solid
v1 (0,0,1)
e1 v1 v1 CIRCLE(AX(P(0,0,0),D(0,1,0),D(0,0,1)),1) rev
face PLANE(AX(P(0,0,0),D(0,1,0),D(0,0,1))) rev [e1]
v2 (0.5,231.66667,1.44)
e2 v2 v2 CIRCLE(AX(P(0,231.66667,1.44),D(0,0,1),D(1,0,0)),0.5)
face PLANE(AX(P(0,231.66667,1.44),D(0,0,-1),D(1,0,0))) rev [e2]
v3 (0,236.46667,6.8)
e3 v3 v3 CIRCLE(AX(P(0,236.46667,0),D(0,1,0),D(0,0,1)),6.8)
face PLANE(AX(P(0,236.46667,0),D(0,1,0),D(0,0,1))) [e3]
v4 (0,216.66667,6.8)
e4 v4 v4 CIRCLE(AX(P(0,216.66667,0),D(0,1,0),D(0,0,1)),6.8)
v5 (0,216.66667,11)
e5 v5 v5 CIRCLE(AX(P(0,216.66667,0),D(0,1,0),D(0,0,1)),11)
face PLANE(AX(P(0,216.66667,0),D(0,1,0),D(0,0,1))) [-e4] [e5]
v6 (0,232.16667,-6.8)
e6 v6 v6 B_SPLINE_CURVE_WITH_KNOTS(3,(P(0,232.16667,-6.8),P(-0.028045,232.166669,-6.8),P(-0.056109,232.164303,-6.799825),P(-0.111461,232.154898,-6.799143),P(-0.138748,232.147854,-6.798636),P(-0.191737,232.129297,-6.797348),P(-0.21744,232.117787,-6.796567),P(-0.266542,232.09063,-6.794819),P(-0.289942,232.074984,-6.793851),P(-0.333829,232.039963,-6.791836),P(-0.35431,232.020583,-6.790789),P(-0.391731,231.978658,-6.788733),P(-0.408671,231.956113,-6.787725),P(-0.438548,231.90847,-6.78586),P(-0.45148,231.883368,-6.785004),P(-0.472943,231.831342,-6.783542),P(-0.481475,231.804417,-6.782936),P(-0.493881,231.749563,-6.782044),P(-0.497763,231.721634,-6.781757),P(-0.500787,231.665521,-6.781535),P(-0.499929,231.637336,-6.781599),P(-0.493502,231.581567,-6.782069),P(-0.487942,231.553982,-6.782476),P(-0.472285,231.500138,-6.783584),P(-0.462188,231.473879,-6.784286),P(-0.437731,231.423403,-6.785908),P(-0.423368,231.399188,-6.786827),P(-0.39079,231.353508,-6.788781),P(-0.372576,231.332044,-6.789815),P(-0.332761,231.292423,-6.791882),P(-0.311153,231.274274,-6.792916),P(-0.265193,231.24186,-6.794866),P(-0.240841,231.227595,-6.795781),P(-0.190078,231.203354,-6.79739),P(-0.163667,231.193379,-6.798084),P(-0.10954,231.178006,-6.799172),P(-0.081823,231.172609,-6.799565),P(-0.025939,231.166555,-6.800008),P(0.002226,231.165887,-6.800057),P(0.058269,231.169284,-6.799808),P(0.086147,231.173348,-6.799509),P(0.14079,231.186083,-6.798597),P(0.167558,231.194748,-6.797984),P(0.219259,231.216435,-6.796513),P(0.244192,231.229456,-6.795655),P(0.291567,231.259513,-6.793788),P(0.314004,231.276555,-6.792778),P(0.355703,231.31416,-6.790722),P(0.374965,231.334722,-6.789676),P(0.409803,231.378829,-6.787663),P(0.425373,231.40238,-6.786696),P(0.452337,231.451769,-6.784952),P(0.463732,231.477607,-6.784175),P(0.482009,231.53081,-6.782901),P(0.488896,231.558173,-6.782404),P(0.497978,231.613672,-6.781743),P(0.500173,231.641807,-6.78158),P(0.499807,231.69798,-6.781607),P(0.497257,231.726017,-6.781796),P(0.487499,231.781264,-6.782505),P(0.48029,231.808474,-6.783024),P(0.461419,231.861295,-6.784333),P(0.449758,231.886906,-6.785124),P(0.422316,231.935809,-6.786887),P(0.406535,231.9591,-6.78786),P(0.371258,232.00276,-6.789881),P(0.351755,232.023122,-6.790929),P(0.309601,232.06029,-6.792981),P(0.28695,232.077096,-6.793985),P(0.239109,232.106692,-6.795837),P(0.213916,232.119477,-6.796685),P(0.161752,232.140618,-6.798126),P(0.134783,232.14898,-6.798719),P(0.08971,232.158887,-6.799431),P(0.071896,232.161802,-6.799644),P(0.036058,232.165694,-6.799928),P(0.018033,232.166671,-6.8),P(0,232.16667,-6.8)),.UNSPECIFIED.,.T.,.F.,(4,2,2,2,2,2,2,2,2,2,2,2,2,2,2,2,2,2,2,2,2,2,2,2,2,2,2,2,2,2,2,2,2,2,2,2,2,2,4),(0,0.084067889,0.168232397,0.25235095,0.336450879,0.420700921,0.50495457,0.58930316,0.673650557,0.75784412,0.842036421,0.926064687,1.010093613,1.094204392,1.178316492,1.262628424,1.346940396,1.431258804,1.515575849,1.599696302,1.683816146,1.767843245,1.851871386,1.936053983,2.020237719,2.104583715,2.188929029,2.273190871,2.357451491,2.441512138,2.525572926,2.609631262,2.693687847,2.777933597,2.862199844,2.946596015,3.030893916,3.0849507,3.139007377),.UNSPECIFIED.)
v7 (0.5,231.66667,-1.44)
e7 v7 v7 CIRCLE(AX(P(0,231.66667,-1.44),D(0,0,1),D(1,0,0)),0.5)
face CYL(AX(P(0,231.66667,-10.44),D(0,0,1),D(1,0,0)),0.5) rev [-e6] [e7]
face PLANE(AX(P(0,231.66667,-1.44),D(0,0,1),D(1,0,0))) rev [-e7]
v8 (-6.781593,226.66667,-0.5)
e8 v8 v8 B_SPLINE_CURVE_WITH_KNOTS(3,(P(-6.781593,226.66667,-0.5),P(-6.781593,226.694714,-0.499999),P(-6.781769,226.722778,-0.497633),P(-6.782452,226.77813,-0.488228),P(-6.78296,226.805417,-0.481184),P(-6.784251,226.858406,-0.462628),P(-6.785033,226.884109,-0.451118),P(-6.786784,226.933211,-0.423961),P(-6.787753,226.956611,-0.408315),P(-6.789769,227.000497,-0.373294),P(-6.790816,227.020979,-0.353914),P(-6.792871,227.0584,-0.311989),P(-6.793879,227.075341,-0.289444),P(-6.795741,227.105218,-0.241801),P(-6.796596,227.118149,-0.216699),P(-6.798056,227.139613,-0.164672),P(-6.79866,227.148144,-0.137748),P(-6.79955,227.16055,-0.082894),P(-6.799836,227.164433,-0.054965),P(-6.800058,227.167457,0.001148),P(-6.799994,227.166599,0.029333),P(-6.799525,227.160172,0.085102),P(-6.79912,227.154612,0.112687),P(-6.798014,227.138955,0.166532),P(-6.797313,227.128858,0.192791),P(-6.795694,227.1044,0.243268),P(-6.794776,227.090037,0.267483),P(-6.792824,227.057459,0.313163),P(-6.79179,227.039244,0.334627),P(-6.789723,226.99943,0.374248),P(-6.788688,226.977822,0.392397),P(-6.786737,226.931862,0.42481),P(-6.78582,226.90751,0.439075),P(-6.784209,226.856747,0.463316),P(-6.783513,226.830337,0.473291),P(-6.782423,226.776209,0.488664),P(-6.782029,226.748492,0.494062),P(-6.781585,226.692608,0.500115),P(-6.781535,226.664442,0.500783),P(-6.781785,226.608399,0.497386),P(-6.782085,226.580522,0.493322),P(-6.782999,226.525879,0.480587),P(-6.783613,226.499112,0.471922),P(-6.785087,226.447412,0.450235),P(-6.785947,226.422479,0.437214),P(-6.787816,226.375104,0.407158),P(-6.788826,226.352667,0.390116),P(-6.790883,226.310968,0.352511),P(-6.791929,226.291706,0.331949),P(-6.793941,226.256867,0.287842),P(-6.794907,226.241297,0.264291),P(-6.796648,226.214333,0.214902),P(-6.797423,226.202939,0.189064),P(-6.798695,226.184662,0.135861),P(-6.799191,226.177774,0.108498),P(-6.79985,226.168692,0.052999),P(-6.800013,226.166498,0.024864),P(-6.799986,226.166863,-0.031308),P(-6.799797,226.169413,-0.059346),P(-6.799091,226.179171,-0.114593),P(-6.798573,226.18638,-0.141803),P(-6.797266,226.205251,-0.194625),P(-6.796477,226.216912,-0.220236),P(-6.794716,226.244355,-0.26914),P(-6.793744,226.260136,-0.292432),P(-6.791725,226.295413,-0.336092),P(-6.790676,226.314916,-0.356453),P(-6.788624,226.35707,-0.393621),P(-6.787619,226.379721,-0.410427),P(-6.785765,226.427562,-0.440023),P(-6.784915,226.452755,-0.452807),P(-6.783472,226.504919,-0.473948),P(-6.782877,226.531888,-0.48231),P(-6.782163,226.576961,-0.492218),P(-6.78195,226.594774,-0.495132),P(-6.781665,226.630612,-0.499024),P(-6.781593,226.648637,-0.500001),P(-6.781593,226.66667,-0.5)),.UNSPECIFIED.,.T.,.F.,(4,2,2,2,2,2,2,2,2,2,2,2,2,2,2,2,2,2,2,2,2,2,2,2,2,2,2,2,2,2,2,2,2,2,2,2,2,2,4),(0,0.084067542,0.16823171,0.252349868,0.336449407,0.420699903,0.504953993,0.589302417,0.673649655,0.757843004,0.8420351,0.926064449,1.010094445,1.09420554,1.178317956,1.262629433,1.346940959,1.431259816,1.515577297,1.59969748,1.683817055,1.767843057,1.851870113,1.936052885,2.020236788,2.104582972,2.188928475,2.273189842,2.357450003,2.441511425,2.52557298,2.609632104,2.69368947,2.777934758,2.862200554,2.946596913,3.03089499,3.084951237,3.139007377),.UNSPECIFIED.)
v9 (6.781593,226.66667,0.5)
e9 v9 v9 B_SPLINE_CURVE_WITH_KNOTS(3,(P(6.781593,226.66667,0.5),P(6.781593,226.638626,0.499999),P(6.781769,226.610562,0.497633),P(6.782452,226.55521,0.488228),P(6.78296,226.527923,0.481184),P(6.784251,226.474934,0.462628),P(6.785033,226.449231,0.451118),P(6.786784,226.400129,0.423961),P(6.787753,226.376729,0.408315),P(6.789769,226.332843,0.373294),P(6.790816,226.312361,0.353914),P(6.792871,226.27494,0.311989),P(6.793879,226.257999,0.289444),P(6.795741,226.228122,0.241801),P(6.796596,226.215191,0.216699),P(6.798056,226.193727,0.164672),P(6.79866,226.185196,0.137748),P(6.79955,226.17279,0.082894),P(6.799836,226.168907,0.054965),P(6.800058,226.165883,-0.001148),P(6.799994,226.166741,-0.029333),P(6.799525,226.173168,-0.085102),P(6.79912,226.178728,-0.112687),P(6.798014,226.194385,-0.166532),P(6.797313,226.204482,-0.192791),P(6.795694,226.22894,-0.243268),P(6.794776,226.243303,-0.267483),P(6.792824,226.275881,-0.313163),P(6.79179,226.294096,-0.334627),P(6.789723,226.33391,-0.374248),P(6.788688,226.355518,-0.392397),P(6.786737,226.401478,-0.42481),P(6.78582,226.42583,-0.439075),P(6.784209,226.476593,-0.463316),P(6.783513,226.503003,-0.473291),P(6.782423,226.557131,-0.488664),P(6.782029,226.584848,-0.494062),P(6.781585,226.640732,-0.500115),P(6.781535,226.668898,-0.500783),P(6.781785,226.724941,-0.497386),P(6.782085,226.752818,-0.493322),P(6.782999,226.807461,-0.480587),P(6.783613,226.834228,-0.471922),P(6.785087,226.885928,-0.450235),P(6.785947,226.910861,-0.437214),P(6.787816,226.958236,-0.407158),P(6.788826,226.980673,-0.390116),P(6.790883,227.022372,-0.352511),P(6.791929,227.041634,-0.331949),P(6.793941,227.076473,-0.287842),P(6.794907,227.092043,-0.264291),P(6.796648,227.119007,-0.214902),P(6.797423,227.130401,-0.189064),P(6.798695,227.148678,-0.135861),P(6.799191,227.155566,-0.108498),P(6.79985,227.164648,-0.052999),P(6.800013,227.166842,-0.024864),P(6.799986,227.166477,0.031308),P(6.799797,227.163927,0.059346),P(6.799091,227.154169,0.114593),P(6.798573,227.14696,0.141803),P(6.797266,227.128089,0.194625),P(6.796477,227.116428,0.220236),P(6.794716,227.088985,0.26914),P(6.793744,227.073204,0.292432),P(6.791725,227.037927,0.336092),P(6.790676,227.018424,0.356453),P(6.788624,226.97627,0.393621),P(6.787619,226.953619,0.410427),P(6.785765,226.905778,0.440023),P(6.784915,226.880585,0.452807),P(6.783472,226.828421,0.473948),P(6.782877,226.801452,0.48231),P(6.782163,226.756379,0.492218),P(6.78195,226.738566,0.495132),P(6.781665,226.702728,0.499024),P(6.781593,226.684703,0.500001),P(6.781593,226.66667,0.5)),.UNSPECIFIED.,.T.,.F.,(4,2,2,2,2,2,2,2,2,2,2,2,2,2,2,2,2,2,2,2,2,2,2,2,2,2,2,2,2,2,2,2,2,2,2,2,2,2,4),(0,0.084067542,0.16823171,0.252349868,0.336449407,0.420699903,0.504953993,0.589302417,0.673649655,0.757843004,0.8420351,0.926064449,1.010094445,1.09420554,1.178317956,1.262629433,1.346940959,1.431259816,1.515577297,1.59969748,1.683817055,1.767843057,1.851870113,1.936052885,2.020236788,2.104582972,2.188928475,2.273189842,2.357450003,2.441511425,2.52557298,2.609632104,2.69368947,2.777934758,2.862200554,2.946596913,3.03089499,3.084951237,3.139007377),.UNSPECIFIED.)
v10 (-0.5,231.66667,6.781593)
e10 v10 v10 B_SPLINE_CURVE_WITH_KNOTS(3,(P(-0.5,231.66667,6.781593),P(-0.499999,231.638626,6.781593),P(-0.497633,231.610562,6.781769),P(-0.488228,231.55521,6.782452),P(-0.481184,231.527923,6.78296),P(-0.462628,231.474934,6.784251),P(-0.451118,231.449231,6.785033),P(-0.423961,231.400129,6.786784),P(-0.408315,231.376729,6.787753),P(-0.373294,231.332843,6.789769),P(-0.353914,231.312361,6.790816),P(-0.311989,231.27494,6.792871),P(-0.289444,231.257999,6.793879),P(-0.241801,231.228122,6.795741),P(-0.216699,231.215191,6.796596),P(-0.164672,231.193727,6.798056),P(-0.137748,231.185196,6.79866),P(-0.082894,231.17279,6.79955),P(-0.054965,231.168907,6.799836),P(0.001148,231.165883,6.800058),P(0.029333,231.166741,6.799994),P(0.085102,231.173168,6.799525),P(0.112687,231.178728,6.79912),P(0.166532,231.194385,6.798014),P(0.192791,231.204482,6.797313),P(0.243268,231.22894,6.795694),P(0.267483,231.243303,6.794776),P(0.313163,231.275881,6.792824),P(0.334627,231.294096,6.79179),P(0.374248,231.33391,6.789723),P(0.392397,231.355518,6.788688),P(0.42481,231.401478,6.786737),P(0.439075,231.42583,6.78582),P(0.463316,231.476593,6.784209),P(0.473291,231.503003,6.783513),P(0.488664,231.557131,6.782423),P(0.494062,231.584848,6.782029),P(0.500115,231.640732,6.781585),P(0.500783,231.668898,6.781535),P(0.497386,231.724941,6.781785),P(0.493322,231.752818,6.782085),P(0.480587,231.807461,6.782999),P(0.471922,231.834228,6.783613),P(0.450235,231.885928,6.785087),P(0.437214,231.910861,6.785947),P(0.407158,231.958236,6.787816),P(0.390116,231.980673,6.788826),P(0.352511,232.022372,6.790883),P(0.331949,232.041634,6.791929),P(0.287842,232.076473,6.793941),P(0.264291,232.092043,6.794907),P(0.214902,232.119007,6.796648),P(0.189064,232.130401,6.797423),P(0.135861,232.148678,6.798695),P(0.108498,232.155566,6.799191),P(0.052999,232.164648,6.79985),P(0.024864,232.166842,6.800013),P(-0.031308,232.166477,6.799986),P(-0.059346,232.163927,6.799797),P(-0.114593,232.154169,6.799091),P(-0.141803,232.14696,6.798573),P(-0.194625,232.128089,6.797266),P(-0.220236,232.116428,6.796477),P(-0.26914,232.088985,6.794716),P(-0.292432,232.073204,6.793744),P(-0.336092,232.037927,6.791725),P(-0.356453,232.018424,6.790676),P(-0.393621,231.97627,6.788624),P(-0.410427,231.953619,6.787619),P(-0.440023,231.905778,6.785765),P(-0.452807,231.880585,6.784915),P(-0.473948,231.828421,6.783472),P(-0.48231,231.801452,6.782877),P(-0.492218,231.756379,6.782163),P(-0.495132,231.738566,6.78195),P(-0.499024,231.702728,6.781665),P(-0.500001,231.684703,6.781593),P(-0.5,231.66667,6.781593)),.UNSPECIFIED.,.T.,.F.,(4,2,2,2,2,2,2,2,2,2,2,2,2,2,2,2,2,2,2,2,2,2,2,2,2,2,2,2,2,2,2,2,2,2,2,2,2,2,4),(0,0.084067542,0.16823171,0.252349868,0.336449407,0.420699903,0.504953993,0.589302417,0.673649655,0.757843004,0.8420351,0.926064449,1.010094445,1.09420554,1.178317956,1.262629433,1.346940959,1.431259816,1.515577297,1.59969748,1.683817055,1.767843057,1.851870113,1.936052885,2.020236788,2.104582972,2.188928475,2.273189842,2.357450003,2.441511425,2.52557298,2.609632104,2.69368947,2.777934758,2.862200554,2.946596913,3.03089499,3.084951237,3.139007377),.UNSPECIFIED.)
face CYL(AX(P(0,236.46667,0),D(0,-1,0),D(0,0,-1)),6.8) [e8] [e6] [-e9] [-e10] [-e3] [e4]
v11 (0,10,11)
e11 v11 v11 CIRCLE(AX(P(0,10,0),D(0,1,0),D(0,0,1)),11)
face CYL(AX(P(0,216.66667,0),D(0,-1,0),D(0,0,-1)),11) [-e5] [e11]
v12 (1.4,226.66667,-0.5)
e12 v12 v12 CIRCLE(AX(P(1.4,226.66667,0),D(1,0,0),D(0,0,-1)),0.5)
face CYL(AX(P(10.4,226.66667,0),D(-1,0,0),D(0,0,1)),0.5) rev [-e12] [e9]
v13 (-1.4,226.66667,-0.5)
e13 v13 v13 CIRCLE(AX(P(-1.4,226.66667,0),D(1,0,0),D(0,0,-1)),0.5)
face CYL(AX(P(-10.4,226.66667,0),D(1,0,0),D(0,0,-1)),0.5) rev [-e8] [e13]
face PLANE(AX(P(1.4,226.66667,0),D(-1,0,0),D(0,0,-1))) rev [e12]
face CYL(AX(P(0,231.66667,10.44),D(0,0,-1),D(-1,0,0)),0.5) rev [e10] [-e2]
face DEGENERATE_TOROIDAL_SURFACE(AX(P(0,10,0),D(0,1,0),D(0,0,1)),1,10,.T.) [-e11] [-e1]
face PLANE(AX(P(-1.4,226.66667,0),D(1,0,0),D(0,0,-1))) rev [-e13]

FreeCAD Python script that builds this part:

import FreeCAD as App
import Part
import Sketcher
from FreeCAD import Vector
Q = App.Units.Quantity


def edges_at(feature, points):
    """Names of the edges that pass closest to the given points."""
    edges = feature.Shape.Edges
    near = lambda p: min(range(len(edges)), key=lambda i: edges[i].distToShape(Part.Vertex(*p))[0])
    return sorted({f"Edge{near(p) + 1}" for p in points})

doc = App.newDocument("Part")
body = doc.addObject("PartDesign::Body", "Body")

sketch1 = body.newObject("Sketcher::SketchObject", "Sketch")
sketch1.AttachmentSupport = (doc.getObject("XZ_Plane"), [""])
sketch1.MapMode = "FlatFace"
sketch1.addGeometry(Part.Circle(Vector(0, 0, 0), Vector(0, 0, 1), 11), False)
sketch1.addConstraint(Sketcher.Constraint("Coincident", 0, 3, -1, 1))
sketch1.addConstraint(Sketcher.Constraint("Diameter", 0, Q("22 mm")))
pad1 = body.newObject("PartDesign::Pad", "Pad")
pad1.Profile = sketch1
pad1.Length = 216.66667
pad1.Reversed = True

sketch2 = body.newObject("Sketcher::SketchObject", "Sketch001")
sketch2.AttachmentSupport = (doc.getObject("XZ_Plane"), [""])
sketch2.MapMode = "FlatFace"
sketch2.AttachmentOffset = App.Placement(Vector(0, 0, -216.66667), App.Rotation())
sketch2.addGeometry(Part.Circle(Vector(0, 0, 0), Vector(0, 0, 1), 7), False)
sketch2.addConstraint(Sketcher.Constraint("Coincident", 0, 3, -1, 1))
sketch2.addConstraint(Sketcher.Constraint("Diameter", 0, Q("13.6 mm")))
pad2 = body.newObject("PartDesign::Pad", "Pad001")
pad2.Profile = sketch2
pad2.Length = 19.8
pad2.Reversed = True
doc.recompute()

fillet = body.newObject("PartDesign::Fillet", "Fillet")
fillet.Base = (pad2, edges_at(pad2, [(0, 0, -11)]))
fillet.Radius = 10

sketch3 = body.newObject("Sketcher::SketchObject", "Sketch002")
sketch3.AttachmentSupport = (doc.getObject("XY_Plane"), [""])
sketch3.MapMode = "FlatFace"
sketch3.AttachmentOffset = App.Placement(Vector(0, 0, -1.44), App.Rotation())
sketch3.addGeometry(Part.Circle(Vector(0, 231.7, 0), Vector(0, 0, 1), 0.5), False)
sketch3.addConstraint(Sketcher.Constraint("PointOnObject", 0, 3, -2))
sketch3.addConstraint(Sketcher.Constraint("Diameter", 0, Q("1 mm")))
sketch3.addConstraint(Sketcher.Constraint("DistanceY", -1, 1, 0, 3, Q("231.66667 mm")))
pocket1 = body.newObject("PartDesign::Pocket", "Pocket")
pocket1.Profile = sketch3
pocket1.Length = 9
doc.recompute()

mirrored = body.newObject("PartDesign::Mirrored", "Mirrored")
mirrored.Originals = [pocket1]
mirrored.MirrorPlane = (doc.getObject("XY_Plane"), [""])
body.Tip = mirrored

sketch4 = body.newObject("Sketcher::SketchObject", "Sketch003")
sketch4.AttachmentSupport = (doc.getObject("YZ_Plane"), [""])
sketch4.MapMode = "FlatFace"
sketch4.AttachmentOffset = App.Placement(Vector(0, 0, -1.4), App.Rotation())
sketch4.addGeometry(Part.Circle(Vector(226.7, 0, 0), Vector(0, 0, 1), 0.5), False)
sketch4.addConstraint(Sketcher.Constraint("PointOnObject", 0, 3, -1))
sketch4.addConstraint(Sketcher.Constraint("Diameter", 0, Q("1 mm")))
sketch4.addConstraint(Sketcher.Constraint("DistanceX", -1, 1, 0, 3, Q("226.66667 mm")))
pocket2 = body.newObject("PartDesign::Pocket", "Pocket001")
pocket2.Profile = sketch4
pocket2.Length = 9
doc.recompute()

mirrored2 = body.newObject("PartDesign::Mirrored", "Mirrored001")
mirrored2.Originals = [pocket2]
mirrored2.MirrorPlane = (doc.getObject("YZ_Plane"), [""])
body.Tip = mirrored2

doc.recompute()
